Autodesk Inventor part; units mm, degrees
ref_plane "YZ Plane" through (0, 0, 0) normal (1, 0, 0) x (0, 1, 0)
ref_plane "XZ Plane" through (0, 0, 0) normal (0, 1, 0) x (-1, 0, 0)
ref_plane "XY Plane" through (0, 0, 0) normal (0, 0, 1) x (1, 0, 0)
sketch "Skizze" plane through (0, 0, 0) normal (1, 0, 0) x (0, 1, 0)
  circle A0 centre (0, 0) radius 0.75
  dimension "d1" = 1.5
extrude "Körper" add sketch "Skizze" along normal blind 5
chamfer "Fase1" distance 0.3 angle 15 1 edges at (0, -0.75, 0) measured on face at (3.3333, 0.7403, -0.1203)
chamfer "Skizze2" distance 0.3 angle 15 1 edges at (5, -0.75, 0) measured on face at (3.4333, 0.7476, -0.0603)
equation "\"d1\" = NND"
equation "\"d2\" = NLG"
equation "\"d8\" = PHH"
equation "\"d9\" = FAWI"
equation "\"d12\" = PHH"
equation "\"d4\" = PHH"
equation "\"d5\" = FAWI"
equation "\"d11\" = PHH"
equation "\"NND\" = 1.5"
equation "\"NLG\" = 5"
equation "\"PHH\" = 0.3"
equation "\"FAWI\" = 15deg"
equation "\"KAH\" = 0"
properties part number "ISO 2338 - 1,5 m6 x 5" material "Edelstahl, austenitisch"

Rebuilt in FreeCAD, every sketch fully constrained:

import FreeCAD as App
import Part
import Sketcher
Q = App.Units.Quantity


def edges_at(feature, points):
    """Names of the edges that pass closest to the given points."""
    edges = feature.Shape.Edges
    near = lambda p: min(range(len(edges)), key=lambda i: edges[i].distToShape(Part.Vertex(*p))[0])
    return sorted({f"Edge{near(p) + 1}" for p in points})

doc = App.newDocument("Part")
params = doc.addObject("Spreadsheet::Sheet", "Params")
for row, (alias, value) in enumerate([
    ("sketch1_diameter", "1.5 mm"),
    ("pad1_length", "5 mm"),
    ("chamfer_size", "0.3 mm"),
    ("chamfer2_size", "0.3 mm"),
], start=1):
    params.set(f"A{row}", alias)
    params.set(f"B{row}", "=" + value)
    params.setAlias(f"B{row}", alias)

body = doc.addObject("PartDesign::Body", "Body")

# Sketch on YZ plane
sketch1 = body.newObject("Sketcher::SketchObject", "Sketch")
sketch1.AttachmentSupport = (doc.getObject("YZ_Plane"), [""])
sketch1.MapMode = "FlatFace"
sketch1.addGeometry(Part.Circle(App.Vector(0, 0, 0), App.Vector(0, 0, 1), 0.8), False)
sketch1.addConstraint([
    Sketcher.Constraint("Coincident", 0, 3, -1, 1),
    Sketcher.Constraint("Diameter", 0, Q("1.5 mm")),
])
sketch1.setExpression("Constraints[1]", "Params.sketch1_diameter")
pad1 = body.newObject("PartDesign::Pad", "Pad")
pad1.Profile = sketch1
pad1.setExpression("Length", "Params.pad1_length")
doc.recompute()

chamfer = body.newObject("PartDesign::Chamfer", "Chamfer")
chamfer.Base = (pad1, edges_at(pad1, [(0, -0.75, 0)]))
chamfer.ChamferType = "Distance and Angle"
chamfer.setExpression("Size", "Params.chamfer_size")
chamfer.Angle = 15
doc.recompute()

chamfer2 = body.newObject("PartDesign::Chamfer", "Chamfer001")
chamfer2.Base = (chamfer, edges_at(chamfer, [(5, -0.75, 0)]))
chamfer2.ChamferType = "Distance and Angle"
chamfer2.setExpression("Size", "Params.chamfer2_size")
chamfer2.Angle = 15

doc.recompute()
